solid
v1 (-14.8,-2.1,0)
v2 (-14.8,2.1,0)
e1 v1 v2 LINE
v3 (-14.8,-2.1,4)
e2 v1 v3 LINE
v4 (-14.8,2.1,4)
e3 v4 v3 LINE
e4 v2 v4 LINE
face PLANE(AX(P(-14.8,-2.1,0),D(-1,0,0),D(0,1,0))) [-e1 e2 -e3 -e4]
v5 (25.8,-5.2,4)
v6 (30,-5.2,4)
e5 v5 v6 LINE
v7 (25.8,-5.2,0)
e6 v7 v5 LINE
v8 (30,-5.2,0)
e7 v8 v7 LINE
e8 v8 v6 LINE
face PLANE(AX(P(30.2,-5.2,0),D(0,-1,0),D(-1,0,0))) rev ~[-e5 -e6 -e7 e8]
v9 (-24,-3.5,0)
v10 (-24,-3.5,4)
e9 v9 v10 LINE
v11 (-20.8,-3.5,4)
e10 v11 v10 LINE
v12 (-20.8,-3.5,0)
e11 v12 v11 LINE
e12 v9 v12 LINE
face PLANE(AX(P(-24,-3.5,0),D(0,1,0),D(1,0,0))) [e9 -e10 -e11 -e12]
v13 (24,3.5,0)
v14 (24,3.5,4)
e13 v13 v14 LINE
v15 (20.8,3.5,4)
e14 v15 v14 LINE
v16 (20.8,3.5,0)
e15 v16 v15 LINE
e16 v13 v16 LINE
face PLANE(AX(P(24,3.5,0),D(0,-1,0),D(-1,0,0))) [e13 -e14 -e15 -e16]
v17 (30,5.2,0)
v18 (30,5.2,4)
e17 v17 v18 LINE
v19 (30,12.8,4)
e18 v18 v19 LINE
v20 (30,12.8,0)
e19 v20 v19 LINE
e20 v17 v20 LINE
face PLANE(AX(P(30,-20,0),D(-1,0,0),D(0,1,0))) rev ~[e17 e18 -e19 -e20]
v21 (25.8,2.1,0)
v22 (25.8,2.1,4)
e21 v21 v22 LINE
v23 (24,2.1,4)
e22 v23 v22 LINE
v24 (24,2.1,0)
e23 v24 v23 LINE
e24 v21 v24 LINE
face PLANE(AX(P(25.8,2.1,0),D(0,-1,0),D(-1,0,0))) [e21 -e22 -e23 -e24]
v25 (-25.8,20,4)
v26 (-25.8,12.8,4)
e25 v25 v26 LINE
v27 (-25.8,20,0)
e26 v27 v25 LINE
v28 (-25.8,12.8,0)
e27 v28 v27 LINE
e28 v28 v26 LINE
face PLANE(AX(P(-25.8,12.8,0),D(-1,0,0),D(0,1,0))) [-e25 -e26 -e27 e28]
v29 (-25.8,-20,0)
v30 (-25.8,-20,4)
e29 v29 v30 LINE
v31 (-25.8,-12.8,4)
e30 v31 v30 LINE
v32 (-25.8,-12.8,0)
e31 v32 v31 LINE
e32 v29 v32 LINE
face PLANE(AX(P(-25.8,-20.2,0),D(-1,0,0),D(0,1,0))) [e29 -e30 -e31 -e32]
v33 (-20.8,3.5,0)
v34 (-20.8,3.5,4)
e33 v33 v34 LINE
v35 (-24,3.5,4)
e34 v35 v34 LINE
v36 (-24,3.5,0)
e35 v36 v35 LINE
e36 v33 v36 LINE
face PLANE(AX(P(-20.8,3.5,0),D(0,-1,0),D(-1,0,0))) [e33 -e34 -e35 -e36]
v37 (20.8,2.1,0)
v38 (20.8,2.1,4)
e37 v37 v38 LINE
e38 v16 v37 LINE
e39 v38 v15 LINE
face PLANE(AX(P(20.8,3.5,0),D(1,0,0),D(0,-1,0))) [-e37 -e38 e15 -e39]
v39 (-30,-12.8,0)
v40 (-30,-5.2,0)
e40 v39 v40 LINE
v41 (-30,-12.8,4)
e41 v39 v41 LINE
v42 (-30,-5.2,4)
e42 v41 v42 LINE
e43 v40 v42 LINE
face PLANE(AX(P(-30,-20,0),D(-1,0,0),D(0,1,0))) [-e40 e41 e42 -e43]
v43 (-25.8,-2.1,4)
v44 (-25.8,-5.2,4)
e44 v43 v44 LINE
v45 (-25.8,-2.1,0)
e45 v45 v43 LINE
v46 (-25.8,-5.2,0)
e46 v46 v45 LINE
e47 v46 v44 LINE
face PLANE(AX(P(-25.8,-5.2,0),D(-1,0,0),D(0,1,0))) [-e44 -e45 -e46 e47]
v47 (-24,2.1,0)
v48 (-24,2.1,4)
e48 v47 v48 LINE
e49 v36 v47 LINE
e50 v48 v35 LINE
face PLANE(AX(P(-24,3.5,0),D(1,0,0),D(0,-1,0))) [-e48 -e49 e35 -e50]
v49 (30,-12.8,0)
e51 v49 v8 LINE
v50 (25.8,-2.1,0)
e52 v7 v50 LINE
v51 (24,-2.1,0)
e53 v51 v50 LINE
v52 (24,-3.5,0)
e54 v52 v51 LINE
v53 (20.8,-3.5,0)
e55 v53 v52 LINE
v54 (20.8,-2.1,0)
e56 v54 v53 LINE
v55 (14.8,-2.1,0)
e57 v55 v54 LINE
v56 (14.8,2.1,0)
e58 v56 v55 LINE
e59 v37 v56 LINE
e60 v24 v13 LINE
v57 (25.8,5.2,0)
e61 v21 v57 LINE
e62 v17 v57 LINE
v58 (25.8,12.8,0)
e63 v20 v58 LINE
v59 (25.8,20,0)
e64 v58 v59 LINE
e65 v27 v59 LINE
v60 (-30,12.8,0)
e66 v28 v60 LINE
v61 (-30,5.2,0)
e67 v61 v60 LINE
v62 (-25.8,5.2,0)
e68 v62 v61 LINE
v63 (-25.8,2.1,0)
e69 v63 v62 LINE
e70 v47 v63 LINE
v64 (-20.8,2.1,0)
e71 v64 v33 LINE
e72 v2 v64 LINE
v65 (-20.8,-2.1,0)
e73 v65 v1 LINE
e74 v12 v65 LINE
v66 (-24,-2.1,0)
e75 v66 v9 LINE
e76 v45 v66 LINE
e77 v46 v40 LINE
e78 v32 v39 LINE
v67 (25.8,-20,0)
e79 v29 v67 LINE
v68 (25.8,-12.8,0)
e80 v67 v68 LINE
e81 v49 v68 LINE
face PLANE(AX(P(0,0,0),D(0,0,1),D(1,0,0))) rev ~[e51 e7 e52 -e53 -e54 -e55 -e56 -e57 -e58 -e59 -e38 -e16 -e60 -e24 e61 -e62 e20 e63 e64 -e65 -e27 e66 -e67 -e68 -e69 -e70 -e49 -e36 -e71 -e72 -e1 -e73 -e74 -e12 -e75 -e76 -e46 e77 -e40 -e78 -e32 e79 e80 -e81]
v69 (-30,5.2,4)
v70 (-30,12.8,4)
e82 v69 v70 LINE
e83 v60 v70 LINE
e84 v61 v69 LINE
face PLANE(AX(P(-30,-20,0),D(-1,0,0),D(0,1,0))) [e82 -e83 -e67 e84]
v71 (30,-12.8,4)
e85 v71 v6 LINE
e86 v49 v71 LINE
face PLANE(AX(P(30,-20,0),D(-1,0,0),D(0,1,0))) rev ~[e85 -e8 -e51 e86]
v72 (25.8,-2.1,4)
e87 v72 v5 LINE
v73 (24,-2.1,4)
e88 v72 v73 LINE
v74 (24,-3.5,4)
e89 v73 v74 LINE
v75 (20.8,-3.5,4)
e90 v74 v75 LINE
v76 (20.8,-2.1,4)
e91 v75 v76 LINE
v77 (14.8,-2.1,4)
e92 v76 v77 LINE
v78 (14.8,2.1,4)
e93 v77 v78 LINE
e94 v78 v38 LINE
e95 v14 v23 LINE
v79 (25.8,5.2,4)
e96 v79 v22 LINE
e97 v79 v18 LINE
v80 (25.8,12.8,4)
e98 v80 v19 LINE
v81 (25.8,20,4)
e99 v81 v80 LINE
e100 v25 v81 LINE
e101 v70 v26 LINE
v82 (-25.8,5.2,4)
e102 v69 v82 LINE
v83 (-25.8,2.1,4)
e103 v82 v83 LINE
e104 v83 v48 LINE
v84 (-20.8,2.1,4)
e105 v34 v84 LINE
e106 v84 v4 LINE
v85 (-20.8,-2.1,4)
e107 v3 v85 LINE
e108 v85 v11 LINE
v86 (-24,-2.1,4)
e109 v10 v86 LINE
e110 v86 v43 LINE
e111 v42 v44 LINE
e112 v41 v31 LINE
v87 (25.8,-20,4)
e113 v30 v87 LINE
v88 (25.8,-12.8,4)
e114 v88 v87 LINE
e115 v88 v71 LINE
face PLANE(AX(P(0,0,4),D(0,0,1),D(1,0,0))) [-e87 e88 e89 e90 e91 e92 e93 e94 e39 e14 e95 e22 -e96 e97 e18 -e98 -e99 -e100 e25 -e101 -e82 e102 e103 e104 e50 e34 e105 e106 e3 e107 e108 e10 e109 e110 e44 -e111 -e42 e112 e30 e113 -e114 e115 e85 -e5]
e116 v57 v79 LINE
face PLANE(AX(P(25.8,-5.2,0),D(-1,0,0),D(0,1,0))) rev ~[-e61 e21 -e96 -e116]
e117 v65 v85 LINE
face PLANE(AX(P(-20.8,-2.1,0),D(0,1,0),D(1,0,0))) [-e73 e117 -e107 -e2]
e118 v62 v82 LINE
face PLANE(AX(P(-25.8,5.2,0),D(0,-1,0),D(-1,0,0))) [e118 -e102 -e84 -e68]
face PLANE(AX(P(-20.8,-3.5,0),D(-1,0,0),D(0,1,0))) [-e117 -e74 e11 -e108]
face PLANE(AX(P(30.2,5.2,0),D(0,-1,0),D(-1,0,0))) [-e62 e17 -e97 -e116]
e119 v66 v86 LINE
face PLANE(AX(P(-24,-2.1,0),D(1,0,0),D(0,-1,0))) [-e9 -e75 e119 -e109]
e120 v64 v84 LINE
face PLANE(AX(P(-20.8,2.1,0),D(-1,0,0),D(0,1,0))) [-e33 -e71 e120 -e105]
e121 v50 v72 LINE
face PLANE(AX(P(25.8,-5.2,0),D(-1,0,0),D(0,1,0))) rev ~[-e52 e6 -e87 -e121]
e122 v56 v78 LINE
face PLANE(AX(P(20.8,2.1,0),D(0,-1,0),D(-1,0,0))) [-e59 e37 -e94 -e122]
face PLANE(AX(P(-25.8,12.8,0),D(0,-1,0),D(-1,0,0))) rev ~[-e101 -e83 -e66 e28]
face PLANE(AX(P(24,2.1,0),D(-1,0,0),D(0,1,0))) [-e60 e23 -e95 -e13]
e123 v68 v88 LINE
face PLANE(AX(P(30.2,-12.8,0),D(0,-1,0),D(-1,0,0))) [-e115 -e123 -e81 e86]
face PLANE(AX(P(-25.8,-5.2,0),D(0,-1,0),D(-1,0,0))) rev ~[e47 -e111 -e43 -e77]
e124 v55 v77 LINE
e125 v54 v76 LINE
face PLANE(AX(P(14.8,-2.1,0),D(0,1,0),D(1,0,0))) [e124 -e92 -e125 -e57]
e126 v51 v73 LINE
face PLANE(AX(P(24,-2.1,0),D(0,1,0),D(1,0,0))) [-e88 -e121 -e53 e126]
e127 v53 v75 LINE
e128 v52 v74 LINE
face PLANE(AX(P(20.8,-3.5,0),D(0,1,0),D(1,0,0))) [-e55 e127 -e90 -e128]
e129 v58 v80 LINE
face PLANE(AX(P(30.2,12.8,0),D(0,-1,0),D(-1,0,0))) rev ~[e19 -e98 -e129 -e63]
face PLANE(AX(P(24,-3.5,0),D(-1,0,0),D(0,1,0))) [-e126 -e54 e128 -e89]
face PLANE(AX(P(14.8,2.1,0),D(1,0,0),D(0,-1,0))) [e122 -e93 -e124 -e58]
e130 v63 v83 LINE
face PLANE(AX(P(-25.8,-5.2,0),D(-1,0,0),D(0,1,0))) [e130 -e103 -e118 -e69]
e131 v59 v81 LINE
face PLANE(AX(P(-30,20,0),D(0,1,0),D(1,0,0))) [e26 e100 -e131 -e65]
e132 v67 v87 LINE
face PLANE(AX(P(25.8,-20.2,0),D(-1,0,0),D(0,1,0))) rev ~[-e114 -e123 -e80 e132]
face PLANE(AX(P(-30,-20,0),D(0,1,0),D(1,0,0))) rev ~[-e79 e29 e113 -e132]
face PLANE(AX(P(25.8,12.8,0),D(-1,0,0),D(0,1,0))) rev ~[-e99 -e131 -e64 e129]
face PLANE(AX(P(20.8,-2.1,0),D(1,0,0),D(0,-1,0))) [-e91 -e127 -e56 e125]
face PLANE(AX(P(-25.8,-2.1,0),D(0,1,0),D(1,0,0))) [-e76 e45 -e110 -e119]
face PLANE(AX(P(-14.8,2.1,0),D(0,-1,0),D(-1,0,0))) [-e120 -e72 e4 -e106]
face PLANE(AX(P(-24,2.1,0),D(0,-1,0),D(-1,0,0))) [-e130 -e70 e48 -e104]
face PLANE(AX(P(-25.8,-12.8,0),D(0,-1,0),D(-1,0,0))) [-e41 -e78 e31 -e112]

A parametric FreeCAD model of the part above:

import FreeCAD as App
import Part
import Sketcher

V = App.Vector
Q = App.Units.Quantity


def add_polygon(sketch, points):
    """Adds a closed chain of lines whose ends are joined by coincident constraints."""
    first, n = sketch.GeometryCount, len(points)
    for a, b in zip(points, points[1:] + points[:1]):
        sketch.addGeometry(Part.LineSegment(App.Vector(*a, 0), App.Vector(*b, 0)), False)
    for i in range(n):
        sketch.addConstraint(Sketcher.Constraint("Coincident", first + i, 2, first + (i + 1) % n, 1))

doc = App.newDocument("Part")
body = doc.addObject("PartDesign::Body", "Body")

sketch1 = body.newObject("Sketcher::SketchObject", "Sketch")
sketch1.AttachmentSupport = (doc.getObject("XY_Plane"), [""])
sketch1.MapMode = "FlatFace"
add_polygon(sketch1, [(-30, 20), (-30, -20), (30, -20), (30, 20)])
sketch1.addConstraint([
    Sketcher.Constraint("Vertical", 0),
    Sketcher.Constraint("Horizontal", 1),
    Sketcher.Constraint("Vertical", 2),
    Sketcher.Constraint("Horizontal", 3),
    Sketcher.Constraint("Symmetric", 0, 2, 2, 2, -1, 1),
    Sketcher.Constraint("DistanceX", 1, 1, 1, 2, Q("60 mm")),
    Sketcher.Constraint("DistanceY", 0, 2, 0, 1, Q("40 mm")),
])
pad1 = body.newObject("PartDesign::Pad", "Pad")
pad1.Profile = sketch1
pad1.Length = 4

sketch2 = body.newObject("Sketcher::SketchObject", "Sketch001")
sketch2.AttachmentSupport = (doc.getObject("XY_Plane"), [""])
sketch2.MapMode = "FlatFace"
add_polygon(sketch2, [(30.2, -12.8), (30.2, -20.2), (25.8, -20.2), (25.8, -12.8)])
add_polygon(sketch2, [(30.2, 20.2), (30.2, 12.8), (25.8, 12.8), (25.8, 20.2)])
add_polygon(sketch2, [(30.2, 5.2), (30.2, -5.2), (25.8, -5.2), (25.8, 5.2)])
add_polygon(sketch2, [(-25.8, 5.2), (-25.8, -5.2), (-30.2, -5.2), (-30.2, 5.2)])
add_polygon(sketch2, [(-25.8, 20.2), (-25.8, 12.8), (-30.2, 12.8), (-30.2, 20.2)])
add_polygon(sketch2, [(-25.8, -12.8), (-25.8, -20.2), (-30.2, -20.2), (-30.2, -12.8)])
sketch2.addConstraint([
    Sketcher.Constraint("Vertical", 0),
    Sketcher.Constraint("Horizontal", 1),
    Sketcher.Constraint("Vertical", 2),
    Sketcher.Constraint("Horizontal", 3),
    Sketcher.Constraint("Vertical", 4),
    Sketcher.Constraint("Horizontal", 5),
    Sketcher.Constraint("Vertical", 6),
    Sketcher.Constraint("Horizontal", 7),
    Sketcher.Constraint("Vertical", 8),
    Sketcher.Constraint("Horizontal", 9),
    Sketcher.Constraint("Vertical", 10),
    Sketcher.Constraint("Horizontal", 11),
    Sketcher.Constraint("Vertical", 12),
    Sketcher.Constraint("Horizontal", 13),
    Sketcher.Constraint("Vertical", 14),
    Sketcher.Constraint("Horizontal", 15),
    Sketcher.Constraint("Vertical", 16),
    Sketcher.Constraint("Horizontal", 17),
    Sketcher.Constraint("Vertical", 18),
    Sketcher.Constraint("Horizontal", 19),
    Sketcher.Constraint("Vertical", 20),
    Sketcher.Constraint("Horizontal", 21),
    Sketcher.Constraint("Vertical", 22),
    Sketcher.Constraint("Horizontal", 23),
    Sketcher.Constraint("Symmetric", 10, 2, 12, 2, -1, 1),
    Sketcher.Constraint("Symmetric", 8, 2, 14, 2, -1, 1),
    Sketcher.Constraint("Symmetric", 2, 2, 16, 2, -1, 1),
    Sketcher.Constraint("Symmetric", 0, 2, 18, 2, -1, 1),
    Sketcher.Constraint("Symmetric", 6, 2, 20, 2, -1, 1),
    Sketcher.Constraint("Symmetric", 4, 2, 22, 2, -1, 1),
    Sketcher.Constraint("Symmetric", 5, 2, 16, 2, -2),
    Sketcher.Constraint("Symmetric", 7, 2, 18, 2, -2),
    Sketcher.Constraint("Horizontal", 9, 2, 12, 2),
    Sketcher.Constraint("Vertical", 7, 2, 8, 2),
    Sketcher.Constraint("Vertical", 6, 2, 9, 2),
    Sketcher.Constraint("DistanceX", 1, 2, 1, 1, Q("4.4 mm")),
    Sketcher.Constraint("DistanceY", 0, 2, 0, 1, Q("7.4 mm")),
    Sketcher.Constraint("DistanceY", 8, 2, 8, 1, Q("10.4 mm")),
    Sketcher.Constraint("DistanceY", 0, 2, 4, 2, Q("33 mm")),
    Sketcher.Constraint("DistanceX", 13, 2, 9, 2, Q("56 mm")),
])
pocket1 = body.newObject("PartDesign::Pocket", "Pocket")
pocket1.Profile = sketch2
pocket1.Type = "ThroughAll"
pocket1.Reversed = True

sketch3 = body.newObject("Sketcher::SketchObject", "Sketch002")
sketch3.AttachmentSupport = (doc.getObject("XY_Plane"), [""])
sketch3.MapMode = "FlatFace"
add_polygon(sketch3, [(25.8, 2.1), (25.8, -2.1), (24, -2.1), (24, -3.5), (20.8, -3.5), (20.8, -2.1), (14.8, -2.1), (14.8, 2.1), (20.8, 2.1), (20.8, 3.5), (24, 3.5), (24, 2.1)])
add_polygon(sketch3, [(-24, -2.1), (-25.8, -2.1), (-25.8, 2.1), (-24, 2.1), (-24, 3.5), (-20.8, 3.5), (-20.8, 2.1), (-14.8, 2.1), (-14.8, -2.1), (-20.8, -2.1), (-20.8, -3.5), (-24, -3.5)])
sketch3.addConstraint([
    Sketcher.Constraint("Vertical", 0),
    Sketcher.Constraint("Horizontal", 1),
    Sketcher.Constraint("Vertical", 2),
    Sketcher.Constraint("Horizontal", 3),
    Sketcher.Constraint("Vertical", 4),
    Sketcher.Constraint("Horizontal", 5),
    Sketcher.Constraint("Vertical", 6),
    Sketcher.Constraint("Horizontal", 7),
    Sketcher.Constraint("Vertical", 8),
    Sketcher.Constraint("Horizontal", 9),
    Sketcher.Constraint("Vertical", 10),
    Sketcher.Constraint("Horizontal", 11),
    Sketcher.Constraint("Horizontal", 12),
    Sketcher.Constraint("Vertical", 13),
    Sketcher.Constraint("Horizontal", 14),
    Sketcher.Constraint("Vertical", 15),
    Sketcher.Constraint("Horizontal", 16),
    Sketcher.Constraint("Vertical", 17),
    Sketcher.Constraint("Horizontal", 18),
    Sketcher.Constraint("Vertical", 19),
    Sketcher.Constraint("Horizontal", 20),
    Sketcher.Constraint("Vertical", 21),
    Sketcher.Constraint("Horizontal", 22),
    Sketcher.Constraint("Vertical", 23),
    Sketcher.Constraint("Symmetric", 11, 2, 12, 2, -1, 1),
    Sketcher.Constraint("Symmetric", 1, 2, 14, 2, -1, 1),
    Sketcher.Constraint("Symmetric", 3, 2, 16, 2, -1, 1),
    Sketcher.Constraint("Symmetric", 5, 2, 18, 2, -1, 1),
    Sketcher.Constraint("Symmetric", 7, 2, 20, 2, -1, 1),
    Sketcher.Constraint("Symmetric", 9, 2, 22, 2, -1, 1),
    Sketcher.Constraint("Symmetric", 10, 2, 14, 2, -2),
    Sketcher.Constraint("Symmetric", 8, 2, 16, 2, -2),
    Sketcher.Constraint("Horizontal", 1, 2, 4, 2),
    Sketcher.Constraint("Horizontal", 7, 2, 10, 2),
    Sketcher.Constraint("DistanceX", 5, 2, 5, 1, Q("6 mm")),
    Sketcher.Constraint("DistanceX", 1, 2, 1, 1, Q("1.8 mm")),
    Sketcher.Constraint("DistanceX", 3, 2, 3, 1, Q("3.2 mm")),
    Sketcher.Constraint("DistanceY", 0, 2, 0, 1, Q("4.2 mm")),
    Sketcher.Constraint("DistanceY", 2, 2, 2, 1, Q("1.4 mm")),
    Sketcher.Constraint("DistanceX", -1, 1, 1, 2, Q("24 mm")),
])
pocket2 = body.newObject("PartDesign::Pocket", "Pocket001")
pocket2.Profile = sketch3
pocket2.Type = "ThroughAll"
pocket2.Reversed = True

doc.recompute()
